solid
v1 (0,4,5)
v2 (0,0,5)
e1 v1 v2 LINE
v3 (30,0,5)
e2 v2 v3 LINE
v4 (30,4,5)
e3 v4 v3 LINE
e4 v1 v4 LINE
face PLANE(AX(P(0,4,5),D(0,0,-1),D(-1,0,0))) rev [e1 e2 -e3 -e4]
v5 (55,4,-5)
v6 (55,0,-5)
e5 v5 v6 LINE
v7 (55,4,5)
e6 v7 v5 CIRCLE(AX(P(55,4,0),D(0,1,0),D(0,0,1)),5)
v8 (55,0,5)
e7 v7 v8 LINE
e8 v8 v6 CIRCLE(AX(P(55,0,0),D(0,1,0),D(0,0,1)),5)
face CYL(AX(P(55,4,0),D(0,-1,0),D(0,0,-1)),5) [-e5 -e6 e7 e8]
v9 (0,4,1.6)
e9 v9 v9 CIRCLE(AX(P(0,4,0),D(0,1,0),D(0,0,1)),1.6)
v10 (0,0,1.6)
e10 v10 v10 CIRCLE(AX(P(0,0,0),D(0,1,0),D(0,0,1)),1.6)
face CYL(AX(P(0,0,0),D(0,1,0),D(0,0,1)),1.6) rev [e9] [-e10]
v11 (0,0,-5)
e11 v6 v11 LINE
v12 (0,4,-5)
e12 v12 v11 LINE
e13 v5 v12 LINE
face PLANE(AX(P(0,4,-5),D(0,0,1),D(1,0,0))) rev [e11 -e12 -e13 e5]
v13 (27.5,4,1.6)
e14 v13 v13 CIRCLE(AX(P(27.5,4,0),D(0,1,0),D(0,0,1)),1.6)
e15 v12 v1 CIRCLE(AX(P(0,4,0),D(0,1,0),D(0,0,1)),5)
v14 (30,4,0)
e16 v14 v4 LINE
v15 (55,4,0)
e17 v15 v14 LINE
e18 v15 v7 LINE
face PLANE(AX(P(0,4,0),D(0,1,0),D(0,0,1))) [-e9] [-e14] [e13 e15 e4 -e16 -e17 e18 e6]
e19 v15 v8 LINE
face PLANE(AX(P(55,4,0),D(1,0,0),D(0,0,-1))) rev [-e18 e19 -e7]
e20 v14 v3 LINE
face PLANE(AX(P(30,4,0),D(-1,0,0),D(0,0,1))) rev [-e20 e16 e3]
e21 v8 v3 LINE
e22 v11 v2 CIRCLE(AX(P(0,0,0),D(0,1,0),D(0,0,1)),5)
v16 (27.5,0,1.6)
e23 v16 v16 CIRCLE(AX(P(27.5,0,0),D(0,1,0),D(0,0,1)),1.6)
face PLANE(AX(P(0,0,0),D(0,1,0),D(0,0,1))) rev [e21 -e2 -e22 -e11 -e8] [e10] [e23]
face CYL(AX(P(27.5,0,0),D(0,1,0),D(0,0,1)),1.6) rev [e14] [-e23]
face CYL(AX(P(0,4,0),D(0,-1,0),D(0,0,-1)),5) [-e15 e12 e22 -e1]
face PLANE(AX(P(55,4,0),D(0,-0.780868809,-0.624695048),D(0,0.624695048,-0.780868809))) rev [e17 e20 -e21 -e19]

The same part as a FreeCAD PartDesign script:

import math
import FreeCAD as App
import Part
import Sketcher
Q = App.Units.Quantity

doc = App.newDocument("Part")
body = doc.addObject("PartDesign::Body", "Body")

# Sketch on XZ plane
sketch1 = body.newObject("Sketcher::SketchObject", "Sketch")
sketch1.AttachmentSupport = (doc.getObject("XZ_Plane"), [""])
sketch1.MapMode = "FlatFace"
sketch1.addGeometry([
    Part.LineSegment(App.Vector(55, -5, 0), App.Vector(0, -5, 0)),
    Part.ArcOfCircle(Part.Circle(App.Vector(0, 0, 0), App.Vector(0, 0, 1), 5), math.radians(90), math.radians(270)),
    Part.LineSegment(App.Vector(0, 5, 0), App.Vector(55, 5, 0)),
    Part.ArcOfCircle(Part.Circle(App.Vector(55, 0, 0), App.Vector(0, 0, 1), 5), math.radians(-90), math.radians(90)),
], False)
sketch1.addConstraint([
    Sketcher.Constraint("Tangent", 0, 2, 1, 2),
    Sketcher.Constraint("Tangent", 1, 1, 2, 1),
    Sketcher.Constraint("Tangent", 2, 2, 3, 2),
    Sketcher.Constraint("Tangent", 3, 1, 0, 1),
    Sketcher.Constraint("Horizontal", 0),
    Sketcher.Constraint("Horizontal", 2),
    Sketcher.Constraint("Coincident", 1, 3, -1, 1),
    Sketcher.Constraint("Radius", 1, Q("5 mm")),
    Sketcher.Constraint("DistanceX", 0, 2, 0, 1, Q("55 mm")),
])
pad1 = body.newObject("PartDesign::Pad", "Pad")
pad1.Profile = sketch1
pad1.Length = 4
pad1.Reversed = True

# Sketch on XZ plane
sketch2 = body.newObject("Sketcher::SketchObject", "Sketch001")
sketch2.AttachmentSupport = (doc.getObject("XZ_Plane"), [""])
sketch2.MapMode = "FlatFace"
sketch2.AttachmentOffset = App.Placement(App.Vector(0, 0, -4), App.Rotation())
sketch2.addGeometry([
    Part.Circle(App.Vector(0, 0, 0), App.Vector(0, 0, 1), 1.6),
    Part.Circle(App.Vector(27.5, 0, 0), App.Vector(0, 0, 1), 1.6),
], False)
sketch2.addConstraint([
    Sketcher.Constraint("Coincident", 0, 3, -1, 1),
    Sketcher.Constraint("Equal", 0, 1),
    Sketcher.Constraint("PointOnObject", 1, 3, -1),
    Sketcher.Constraint("Diameter", 0, Q("3.2 mm")),
    Sketcher.Constraint("DistanceX", -1, 1, 1, 3, Q("27.5 mm")),
])
pocket1 = body.newObject("PartDesign::Pocket", "Pocket")
pocket1.Profile = sketch2
pocket1.Type = "ThroughAll"
pocket1.Reversed = True

# Sketch on XY plane
sketch3 = body.newObject("Sketcher::SketchObject", "Sketch002")
sketch3.AttachmentSupport = (doc.getObject("XY_Plane"), [""])
sketch3.MapMode = "FlatFace"
sketch3.AttachmentOffset = App.Placement(App.Vector(0, 0, 5), App.Rotation())
sketch3.addGeometry([
    Part.LineSegment(App.Vector(30, 4, 0), App.Vector(30, 0, 0)),
    Part.LineSegment(App.Vector(30, 0, 0), App.Vector(55, 0, 0)),
    Part.LineSegment(App.Vector(55, 0, 0), App.Vector(55, 4, 0)),
    Part.LineSegment(App.Vector(55, 4, 0), App.Vector(30, 4, 0)),
], False)
sketch3.addConstraint([
    Sketcher.Constraint("Coincident", 0, 2, 1, 1),
    Sketcher.Constraint("Coincident", 1, 2, 2, 1),
    Sketcher.Constraint("Coincident", 2, 2, 3, 1),
    Sketcher.Constraint("Coincident", 3, 2, 0, 1),
    Sketcher.Constraint("Vertical", 0),
    Sketcher.Constraint("Horizontal", 1),
    Sketcher.Constraint("Vertical", 2),
    Sketcher.Constraint("Horizontal", 3),
    Sketcher.Constraint("PointOnObject", 0, 2, -1),
    Sketcher.Constraint("DistanceX", 1, 1, 1, 2, Q("25 mm")),
    Sketcher.Constraint("DistanceY", 0, 2, 0, 1, Q("4 mm")),
    Sketcher.Constraint("DistanceX", -1, 1, 0, 2, Q("30 mm")),
])
pocket2 = body.newObject("PartDesign::Pocket", "Pocket001")
pocket2.Profile = sketch3
pocket2.Length = 5

# Sketch on YZ plane
sketch4 = body.newObject("Sketcher::SketchObject", "Sketch003")
sketch4.AttachmentSupport = (doc.getObject("YZ_Plane"), [""])
sketch4.MapMode = "FlatFace"
sketch4.AttachmentOffset = App.Placement(App.Vector(0, 0, 30), App.Rotation())
sketch4.addGeometry([
    Part.LineSegment(App.Vector(4, 0, 0), App.Vector(0, 5, 0)),
    Part.LineSegment(App.Vector(0, 5, 0), App.Vector(0, 0, 0)),
    Part.LineSegment(App.Vector(0, 0, 0), App.Vector(4, 0, 0)),
], False)
sketch4.addConstraint([
    Sketcher.Constraint("Coincident", 0, 2, 1, 1),
    Sketcher.Constraint("Coincident", 1, 2, 2, 1),
    Sketcher.Constraint("Coincident", 2, 2, 0, 1),
    Sketcher.Constraint("Vertical", 1),
    Sketcher.Constraint("Horizontal", 2),
    Sketcher.Constraint("Coincident", 1, 2, -1, 1),
    Sketcher.Constraint("DistanceX", 2, 1, 2, 2, Q("4 mm")),
    Sketcher.Constraint("DistanceY", 1, 2, 1, 1, Q("5 mm")),
])
pad2 = body.newObject("PartDesign::Pad", "Pad001")
pad2.Profile = sketch4
pad2.Length = 25

doc.recompute()
